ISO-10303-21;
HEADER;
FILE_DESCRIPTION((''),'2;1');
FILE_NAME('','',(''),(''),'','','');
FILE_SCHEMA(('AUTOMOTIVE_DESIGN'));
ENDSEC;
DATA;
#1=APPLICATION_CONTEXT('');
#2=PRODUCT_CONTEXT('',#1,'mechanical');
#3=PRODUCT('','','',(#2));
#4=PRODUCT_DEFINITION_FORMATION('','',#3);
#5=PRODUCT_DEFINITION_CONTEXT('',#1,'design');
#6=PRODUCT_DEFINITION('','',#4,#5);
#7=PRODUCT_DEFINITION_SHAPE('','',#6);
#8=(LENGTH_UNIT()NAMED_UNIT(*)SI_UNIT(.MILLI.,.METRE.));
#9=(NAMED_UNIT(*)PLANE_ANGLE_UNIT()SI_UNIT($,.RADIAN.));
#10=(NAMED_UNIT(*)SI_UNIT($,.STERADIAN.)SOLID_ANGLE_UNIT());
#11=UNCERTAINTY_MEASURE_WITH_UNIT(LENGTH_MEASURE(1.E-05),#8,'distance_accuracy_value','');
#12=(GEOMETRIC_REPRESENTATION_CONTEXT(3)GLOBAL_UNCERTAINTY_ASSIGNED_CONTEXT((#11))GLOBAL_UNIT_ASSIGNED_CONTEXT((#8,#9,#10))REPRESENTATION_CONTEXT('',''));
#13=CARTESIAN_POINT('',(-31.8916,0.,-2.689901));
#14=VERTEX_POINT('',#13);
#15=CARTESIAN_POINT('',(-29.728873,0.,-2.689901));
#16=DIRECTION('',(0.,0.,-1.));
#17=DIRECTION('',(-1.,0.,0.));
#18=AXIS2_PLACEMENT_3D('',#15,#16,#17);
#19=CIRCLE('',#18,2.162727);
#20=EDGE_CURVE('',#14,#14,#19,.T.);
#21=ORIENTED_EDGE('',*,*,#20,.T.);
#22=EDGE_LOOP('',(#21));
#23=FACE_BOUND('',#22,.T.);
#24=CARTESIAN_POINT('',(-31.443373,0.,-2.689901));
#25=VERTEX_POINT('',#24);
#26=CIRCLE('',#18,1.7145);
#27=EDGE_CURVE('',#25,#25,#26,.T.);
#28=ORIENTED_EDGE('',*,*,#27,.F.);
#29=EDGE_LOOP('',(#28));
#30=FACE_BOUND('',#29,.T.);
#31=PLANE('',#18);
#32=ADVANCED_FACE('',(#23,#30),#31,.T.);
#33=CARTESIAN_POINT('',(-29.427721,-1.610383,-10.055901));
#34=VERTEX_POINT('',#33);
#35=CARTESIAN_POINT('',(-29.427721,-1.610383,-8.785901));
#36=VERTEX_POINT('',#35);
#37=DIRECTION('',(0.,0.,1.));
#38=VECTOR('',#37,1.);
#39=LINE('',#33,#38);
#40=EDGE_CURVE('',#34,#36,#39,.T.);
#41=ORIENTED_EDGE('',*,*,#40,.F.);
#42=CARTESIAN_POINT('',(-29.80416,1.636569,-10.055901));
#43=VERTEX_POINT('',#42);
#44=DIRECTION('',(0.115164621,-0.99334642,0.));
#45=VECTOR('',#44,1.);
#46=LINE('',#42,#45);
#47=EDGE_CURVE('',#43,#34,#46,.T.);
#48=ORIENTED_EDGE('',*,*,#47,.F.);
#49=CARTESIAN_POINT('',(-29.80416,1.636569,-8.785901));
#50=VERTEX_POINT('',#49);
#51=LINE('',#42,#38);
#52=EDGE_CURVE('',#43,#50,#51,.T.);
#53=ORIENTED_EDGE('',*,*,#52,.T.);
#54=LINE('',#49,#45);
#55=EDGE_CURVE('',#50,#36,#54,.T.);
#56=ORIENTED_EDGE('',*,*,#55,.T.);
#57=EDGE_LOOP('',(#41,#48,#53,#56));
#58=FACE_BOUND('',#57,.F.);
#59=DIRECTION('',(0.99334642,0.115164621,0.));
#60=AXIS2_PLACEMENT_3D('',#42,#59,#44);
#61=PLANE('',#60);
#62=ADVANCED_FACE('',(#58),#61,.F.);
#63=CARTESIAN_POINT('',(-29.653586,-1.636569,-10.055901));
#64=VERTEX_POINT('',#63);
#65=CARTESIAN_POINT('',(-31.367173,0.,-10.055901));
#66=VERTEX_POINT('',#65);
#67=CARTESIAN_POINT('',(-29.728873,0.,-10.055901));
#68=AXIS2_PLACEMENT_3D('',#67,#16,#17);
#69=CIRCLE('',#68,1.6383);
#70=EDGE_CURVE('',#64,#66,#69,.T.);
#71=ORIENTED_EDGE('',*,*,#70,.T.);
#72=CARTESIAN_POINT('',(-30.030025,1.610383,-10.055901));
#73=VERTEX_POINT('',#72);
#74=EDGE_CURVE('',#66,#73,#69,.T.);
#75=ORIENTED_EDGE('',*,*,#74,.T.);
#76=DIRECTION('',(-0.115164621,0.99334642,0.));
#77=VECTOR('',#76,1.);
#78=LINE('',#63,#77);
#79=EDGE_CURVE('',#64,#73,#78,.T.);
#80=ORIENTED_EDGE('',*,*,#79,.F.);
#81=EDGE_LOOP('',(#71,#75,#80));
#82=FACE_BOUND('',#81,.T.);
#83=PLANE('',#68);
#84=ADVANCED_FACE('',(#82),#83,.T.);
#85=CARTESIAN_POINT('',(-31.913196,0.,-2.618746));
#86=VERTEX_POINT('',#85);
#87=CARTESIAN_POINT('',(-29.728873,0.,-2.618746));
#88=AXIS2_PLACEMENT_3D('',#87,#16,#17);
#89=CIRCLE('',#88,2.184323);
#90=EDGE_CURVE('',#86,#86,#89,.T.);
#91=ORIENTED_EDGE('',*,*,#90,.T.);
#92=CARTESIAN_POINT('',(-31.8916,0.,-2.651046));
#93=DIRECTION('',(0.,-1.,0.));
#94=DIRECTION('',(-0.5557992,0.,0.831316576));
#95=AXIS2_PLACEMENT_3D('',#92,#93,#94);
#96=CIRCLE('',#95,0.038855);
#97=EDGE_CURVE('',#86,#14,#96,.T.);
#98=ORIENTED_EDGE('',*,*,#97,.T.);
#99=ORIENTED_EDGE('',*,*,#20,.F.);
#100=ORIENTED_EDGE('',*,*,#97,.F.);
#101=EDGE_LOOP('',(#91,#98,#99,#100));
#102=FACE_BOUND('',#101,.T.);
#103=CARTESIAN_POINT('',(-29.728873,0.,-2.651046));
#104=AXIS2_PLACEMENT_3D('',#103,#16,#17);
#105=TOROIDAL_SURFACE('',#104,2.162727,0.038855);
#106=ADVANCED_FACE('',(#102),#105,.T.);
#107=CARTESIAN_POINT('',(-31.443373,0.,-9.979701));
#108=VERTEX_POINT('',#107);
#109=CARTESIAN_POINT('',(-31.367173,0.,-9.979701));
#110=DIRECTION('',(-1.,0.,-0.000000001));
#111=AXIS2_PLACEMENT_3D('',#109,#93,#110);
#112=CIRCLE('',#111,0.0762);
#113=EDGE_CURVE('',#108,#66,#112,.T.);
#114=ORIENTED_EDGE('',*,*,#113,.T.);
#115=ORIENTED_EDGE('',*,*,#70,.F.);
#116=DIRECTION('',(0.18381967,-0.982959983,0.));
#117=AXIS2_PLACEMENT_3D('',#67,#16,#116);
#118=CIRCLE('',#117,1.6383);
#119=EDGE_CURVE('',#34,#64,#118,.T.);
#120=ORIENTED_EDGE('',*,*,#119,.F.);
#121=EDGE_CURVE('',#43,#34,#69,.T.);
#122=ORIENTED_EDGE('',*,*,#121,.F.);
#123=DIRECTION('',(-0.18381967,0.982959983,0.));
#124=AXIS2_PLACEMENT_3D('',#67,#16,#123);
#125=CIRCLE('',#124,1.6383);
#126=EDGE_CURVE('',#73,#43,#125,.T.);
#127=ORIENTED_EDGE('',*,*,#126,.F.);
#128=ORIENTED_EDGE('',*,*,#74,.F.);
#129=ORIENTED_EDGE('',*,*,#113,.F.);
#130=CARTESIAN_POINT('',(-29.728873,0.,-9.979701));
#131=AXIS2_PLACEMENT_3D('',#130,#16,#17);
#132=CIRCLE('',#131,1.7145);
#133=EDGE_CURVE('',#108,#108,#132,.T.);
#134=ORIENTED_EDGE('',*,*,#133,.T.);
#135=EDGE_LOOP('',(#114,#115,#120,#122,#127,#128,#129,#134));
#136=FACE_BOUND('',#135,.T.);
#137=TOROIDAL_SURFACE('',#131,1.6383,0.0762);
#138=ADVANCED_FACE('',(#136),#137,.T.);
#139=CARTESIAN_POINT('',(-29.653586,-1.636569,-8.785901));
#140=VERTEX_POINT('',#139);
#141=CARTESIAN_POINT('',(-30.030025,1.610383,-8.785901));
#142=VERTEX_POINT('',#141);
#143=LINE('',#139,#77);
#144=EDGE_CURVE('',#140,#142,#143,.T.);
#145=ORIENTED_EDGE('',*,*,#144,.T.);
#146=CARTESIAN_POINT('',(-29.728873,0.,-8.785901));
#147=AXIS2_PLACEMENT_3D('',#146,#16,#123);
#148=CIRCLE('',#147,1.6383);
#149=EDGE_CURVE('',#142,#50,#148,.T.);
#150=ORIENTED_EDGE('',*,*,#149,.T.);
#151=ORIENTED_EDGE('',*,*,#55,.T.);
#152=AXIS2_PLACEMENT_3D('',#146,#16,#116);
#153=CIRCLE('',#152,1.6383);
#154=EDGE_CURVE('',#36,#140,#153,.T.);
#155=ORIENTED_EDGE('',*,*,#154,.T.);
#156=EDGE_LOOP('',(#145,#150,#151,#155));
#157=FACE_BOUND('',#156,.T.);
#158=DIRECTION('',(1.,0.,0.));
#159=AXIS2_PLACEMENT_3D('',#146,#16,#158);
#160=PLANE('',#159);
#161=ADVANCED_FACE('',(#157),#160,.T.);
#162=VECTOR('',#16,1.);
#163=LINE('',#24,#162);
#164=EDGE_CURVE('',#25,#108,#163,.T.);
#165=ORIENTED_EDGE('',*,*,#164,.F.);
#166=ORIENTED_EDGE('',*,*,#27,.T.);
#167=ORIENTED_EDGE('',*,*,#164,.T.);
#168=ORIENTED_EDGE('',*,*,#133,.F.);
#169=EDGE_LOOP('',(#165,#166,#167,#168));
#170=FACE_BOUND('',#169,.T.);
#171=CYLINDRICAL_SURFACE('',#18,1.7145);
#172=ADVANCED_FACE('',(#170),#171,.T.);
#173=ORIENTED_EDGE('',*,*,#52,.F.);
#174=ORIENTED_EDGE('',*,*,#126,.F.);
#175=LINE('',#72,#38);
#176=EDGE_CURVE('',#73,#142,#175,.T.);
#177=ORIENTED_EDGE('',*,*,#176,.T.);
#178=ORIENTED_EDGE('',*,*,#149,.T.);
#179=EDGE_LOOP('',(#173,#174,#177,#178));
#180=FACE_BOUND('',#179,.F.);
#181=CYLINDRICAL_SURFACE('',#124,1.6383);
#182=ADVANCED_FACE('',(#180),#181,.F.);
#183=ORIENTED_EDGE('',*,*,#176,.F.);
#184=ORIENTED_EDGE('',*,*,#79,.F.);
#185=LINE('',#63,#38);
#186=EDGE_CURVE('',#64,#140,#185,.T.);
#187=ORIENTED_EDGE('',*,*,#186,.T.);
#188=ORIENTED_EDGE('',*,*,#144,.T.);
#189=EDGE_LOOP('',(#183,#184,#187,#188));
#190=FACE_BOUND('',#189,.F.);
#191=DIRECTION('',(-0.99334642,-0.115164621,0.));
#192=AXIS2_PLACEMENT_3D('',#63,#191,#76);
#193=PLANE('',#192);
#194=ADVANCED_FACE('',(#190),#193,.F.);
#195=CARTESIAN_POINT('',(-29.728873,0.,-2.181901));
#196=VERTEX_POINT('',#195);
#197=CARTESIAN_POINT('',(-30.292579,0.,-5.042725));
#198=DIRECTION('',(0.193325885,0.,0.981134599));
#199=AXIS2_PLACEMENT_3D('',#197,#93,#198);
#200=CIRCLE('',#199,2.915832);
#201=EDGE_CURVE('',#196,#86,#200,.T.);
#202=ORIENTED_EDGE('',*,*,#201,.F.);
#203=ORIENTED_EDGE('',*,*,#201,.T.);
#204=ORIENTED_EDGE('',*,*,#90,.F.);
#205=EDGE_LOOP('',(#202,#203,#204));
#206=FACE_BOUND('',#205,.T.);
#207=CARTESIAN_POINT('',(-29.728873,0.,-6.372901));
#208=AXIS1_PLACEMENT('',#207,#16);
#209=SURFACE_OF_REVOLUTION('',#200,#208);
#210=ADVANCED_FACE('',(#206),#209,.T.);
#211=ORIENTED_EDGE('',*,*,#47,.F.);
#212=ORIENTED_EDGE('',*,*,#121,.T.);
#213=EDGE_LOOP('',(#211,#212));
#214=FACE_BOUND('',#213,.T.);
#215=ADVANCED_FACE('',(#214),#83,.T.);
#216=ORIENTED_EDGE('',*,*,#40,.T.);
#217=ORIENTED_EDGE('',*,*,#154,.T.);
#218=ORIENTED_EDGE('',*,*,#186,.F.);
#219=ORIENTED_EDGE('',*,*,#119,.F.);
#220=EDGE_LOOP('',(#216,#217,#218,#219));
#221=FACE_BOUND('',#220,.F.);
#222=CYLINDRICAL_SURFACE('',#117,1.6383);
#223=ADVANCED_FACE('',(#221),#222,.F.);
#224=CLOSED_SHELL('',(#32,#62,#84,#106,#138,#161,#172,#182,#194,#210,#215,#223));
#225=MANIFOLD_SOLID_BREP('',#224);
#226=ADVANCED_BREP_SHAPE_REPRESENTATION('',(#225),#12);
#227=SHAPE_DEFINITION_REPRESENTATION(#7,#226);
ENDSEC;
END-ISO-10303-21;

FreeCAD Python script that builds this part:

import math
import FreeCAD as App
import Part
import Sketcher
Q = App.Units.Quantity

doc = App.newDocument("Part")
body = doc.addObject("PartDesign::Body", "Body")

# Sketch on XZ plane
sketch1 = body.newObject("Sketcher::SketchObject", "Sketch")
sketch1.AttachmentSupport = (doc.getObject("XZ_Plane"), [""])
sketch1.MapMode = "FlatFace"
sketch1.addGeometry([
    Part.LineSegment(App.Vector(-31.443, -2.69, 0), App.Vector(-31.443, -9.98, 0)),  # 0
    Part.ArcOfCircle(Part.Circle(App.Vector(-31.367, -9.98, 0), App.Vector(0, 0, 1), 0.076), math.radians(180), math.radians(270)),  # 1
    Part.LineSegment(App.Vector(-31.367, -10.056, 0), App.Vector(-29.729, -10.056, 0)),  # 2
    Part.LineSegment(App.Vector(-29.729, -10.056, 0), App.Vector(-29.729, -2.182, 0)),  # 3
    Part.ArcOfCircle(Part.Circle(App.Vector(-30.293, -5.043, 0), App.Vector(0, 0, 1), 2.916), math.radians(79), math.radians(124)),  # 4
    Part.ArcOfCircle(Part.Circle(App.Vector(-31.892, -2.651, 0), App.Vector(0, 0, 1), 0.039), math.radians(124), math.radians(270)),  # 5
    Part.LineSegment(App.Vector(-31.892, -2.69, 0), App.Vector(-31.443, -2.69, 0)),  # 6
], False)
sketch1.addGeometry(Part.LineSegment(App.Vector(-29.729, -2.182, 0), App.Vector(-29.729, -10.056, 0)), True)  # axis
sketch1.addConstraint([
    Sketcher.Constraint("Tangent", 0, 2, 1, 1),
    Sketcher.Constraint("Tangent", 1, 2, 2, 1),
    Sketcher.Constraint("Coincident", 2, 2, 3, 1),
    Sketcher.Constraint("Coincident", 3, 2, 4, 1),
    Sketcher.Constraint("Tangent", 4, 2, 5, 1),
    Sketcher.Constraint("Tangent", 5, 2, 6, 1),
    Sketcher.Constraint("Coincident", 6, 2, 0, 1),
    Sketcher.Constraint("Vertical", 0),
    Sketcher.Constraint("Horizontal", 2),
    Sketcher.Constraint("Vertical", 3),
    Sketcher.Constraint("Horizontal", 6),
    Sketcher.Constraint("Vertical", 7),
    Sketcher.Constraint("Coincident", 7, 1, 3, 2),
    Sketcher.Constraint("Horizontal", 1, 2, 7, 2),
    Sketcher.Constraint("Radius", 1, Q("0.003 in")),
    Sketcher.Constraint("DistanceY", 3, 1, 3, 2, Q("0.31 in")),
    Sketcher.Constraint("DistanceY", 0, 2, 0, 1, Q("0.287 in")),
    Sketcher.Constraint("DistanceX", 2, 1, 2, 2, Q("0.0645 in")),
    Sketcher.Constraint("Radius", 4, Q("2.915832 mm")),
    Sketcher.Constraint("Radius", 5, Q("0.038855 mm")),
    Sketcher.Constraint("DistanceY", 1, 3, -1, 1, Q("9.979701 mm")),
    Sketcher.Constraint("DistanceX", 5, 3, -1, 1, Q("31.8916 mm")),
    Sketcher.Constraint("DistanceX", 6, 1, 6, 2, Q("0.448227 mm")),
])
revolution = body.newObject("PartDesign::Revolution", "Revolution")
revolution.Profile = sketch1
revolution.ReferenceAxis = (sketch1, ["Axis0"])
revolution.Angle = 360

# Sketch on XY plane
sketch2 = body.newObject("Sketcher::SketchObject", "Sketch001")
sketch2.AttachmentSupport = (doc.getObject("XY_Plane"), [""])
sketch2.MapMode = "FlatFace"
sketch2.AttachmentOffset = App.Placement(App.Vector(0, 0, -10.055901), App.Rotation())
sketch2.addGeometry([
    Part.LineSegment(App.Vector(-29.8, 1.64, 0), App.Vector(-29.43, -1.61, 0)),
    Part.ArcOfCircle(Part.Circle(App.Vector(-29.73, 0, 0), App.Vector(0, 0, 1), 1.64), math.radians(-87.37), math.radians(-79.41)),
    Part.LineSegment(App.Vector(-29.65, -1.64, 0), App.Vector(-30.03, 1.61, 0)),
    Part.ArcOfCircle(Part.Circle(App.Vector(-29.73, 0, 0), App.Vector(0, 0, 1), 1.64), math.radians(92.63), math.radians(100.59)),
], False)
sketch2.addConstraint([
    Sketcher.Constraint("Coincident", 0, 2, 1, 2),
    Sketcher.Constraint("Coincident", 1, 1, 2, 1),
    Sketcher.Constraint("Coincident", 2, 2, 3, 2),
    Sketcher.Constraint("Coincident", 3, 1, 0, 1),
    Sketcher.Constraint("Coincident", 3, 3, 1, 3),
    Sketcher.Constraint("Equal", 1, 3),
    Sketcher.Constraint("PointOnObject", 1, 3, -1),
    Sketcher.Constraint("Parallel", 0, 2),
    Sketcher.Constraint("Equal", 0, 2),
    Sketcher.Constraint("Radius", 1, Q("0.0645 in")),
    Sketcher.Constraint("Distance", 0, Q("3.268701 mm")),
    Sketcher.Constraint("DistanceX", 0, 2, -1, 1, Q("29.427721 mm")),
    Sketcher.Constraint("DistanceY", 1, 1, -1, 1, Q("1.636569 mm")),
])
pocket1 = body.newObject("PartDesign::Pocket", "Pocket")
pocket1.Profile = sketch2
pocket1.Length = Q("0.05 in")
pocket1.Reversed = True

doc.recompute()
